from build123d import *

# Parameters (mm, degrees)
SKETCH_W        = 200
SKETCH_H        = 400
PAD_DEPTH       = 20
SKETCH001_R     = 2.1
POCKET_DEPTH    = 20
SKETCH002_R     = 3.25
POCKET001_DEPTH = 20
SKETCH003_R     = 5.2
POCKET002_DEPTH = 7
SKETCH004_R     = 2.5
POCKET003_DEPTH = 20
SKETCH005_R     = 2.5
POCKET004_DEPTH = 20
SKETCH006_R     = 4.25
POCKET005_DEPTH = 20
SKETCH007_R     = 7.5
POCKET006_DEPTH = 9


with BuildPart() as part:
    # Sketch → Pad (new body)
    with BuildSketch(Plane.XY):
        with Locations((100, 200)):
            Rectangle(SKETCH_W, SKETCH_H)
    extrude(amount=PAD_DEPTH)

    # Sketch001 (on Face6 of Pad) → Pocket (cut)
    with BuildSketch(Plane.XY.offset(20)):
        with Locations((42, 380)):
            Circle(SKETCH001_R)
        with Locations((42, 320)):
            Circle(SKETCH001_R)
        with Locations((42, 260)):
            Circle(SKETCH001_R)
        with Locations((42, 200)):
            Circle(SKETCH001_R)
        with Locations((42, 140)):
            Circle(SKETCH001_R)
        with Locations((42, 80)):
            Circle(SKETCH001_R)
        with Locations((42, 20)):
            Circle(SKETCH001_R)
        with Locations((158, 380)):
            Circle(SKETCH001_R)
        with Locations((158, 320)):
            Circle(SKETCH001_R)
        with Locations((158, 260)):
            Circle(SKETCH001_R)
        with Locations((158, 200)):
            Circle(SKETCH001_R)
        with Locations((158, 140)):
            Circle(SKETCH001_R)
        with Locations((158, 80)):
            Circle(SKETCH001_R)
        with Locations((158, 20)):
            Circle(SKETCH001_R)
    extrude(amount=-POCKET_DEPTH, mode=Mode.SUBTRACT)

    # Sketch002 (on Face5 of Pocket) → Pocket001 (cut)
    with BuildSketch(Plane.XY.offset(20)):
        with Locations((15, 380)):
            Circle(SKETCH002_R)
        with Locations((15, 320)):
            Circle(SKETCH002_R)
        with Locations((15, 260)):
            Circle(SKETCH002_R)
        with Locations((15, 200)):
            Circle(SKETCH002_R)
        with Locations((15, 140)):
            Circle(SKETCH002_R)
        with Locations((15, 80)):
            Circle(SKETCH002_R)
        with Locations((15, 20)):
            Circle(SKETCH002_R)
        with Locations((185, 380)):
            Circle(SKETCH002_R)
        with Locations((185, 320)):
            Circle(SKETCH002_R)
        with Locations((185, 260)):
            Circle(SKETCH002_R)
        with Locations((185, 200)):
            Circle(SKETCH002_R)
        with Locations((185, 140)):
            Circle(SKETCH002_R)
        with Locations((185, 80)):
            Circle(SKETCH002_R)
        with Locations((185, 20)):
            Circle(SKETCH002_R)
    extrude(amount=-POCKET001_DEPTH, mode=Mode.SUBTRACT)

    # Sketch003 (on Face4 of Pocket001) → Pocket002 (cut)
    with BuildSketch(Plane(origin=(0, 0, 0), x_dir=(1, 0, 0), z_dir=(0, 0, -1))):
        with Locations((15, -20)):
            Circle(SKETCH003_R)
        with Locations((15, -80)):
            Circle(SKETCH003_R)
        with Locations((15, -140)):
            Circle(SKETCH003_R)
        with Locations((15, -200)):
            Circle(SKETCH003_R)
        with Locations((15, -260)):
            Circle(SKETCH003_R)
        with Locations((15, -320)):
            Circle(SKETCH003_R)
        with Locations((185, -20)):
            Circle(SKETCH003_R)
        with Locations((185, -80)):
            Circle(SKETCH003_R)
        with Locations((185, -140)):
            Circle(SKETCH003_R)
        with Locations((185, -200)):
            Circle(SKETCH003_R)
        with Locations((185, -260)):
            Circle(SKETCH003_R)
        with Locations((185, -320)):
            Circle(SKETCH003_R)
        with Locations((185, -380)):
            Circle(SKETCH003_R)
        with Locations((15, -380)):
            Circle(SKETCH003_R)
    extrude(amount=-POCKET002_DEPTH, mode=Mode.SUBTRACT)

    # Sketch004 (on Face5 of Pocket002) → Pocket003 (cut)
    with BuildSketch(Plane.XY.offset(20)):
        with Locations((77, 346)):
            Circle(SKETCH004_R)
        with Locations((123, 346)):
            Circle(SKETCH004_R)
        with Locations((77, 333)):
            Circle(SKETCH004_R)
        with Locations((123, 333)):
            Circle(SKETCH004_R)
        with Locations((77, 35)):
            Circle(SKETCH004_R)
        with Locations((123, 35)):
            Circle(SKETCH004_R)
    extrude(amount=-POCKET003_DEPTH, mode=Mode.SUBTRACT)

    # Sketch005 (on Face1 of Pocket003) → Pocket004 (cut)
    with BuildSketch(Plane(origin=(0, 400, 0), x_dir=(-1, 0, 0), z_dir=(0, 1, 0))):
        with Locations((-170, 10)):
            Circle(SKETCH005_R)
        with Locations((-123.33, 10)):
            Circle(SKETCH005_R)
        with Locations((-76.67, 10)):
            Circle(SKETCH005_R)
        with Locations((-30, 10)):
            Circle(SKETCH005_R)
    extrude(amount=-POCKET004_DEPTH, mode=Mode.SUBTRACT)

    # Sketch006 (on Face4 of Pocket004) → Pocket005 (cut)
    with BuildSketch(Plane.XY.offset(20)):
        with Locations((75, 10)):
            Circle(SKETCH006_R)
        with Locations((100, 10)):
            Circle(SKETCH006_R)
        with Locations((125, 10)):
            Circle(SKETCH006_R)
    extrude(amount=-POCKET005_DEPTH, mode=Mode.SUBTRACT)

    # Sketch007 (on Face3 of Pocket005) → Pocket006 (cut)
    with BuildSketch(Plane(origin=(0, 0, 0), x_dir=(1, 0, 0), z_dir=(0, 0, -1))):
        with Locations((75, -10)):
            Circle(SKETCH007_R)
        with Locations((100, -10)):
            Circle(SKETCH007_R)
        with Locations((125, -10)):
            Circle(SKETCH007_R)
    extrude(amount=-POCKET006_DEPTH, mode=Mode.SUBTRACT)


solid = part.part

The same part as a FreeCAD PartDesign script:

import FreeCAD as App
import Part
import Sketcher

V = App.Vector

doc = App.newDocument("Part")
body = doc.addObject("PartDesign::Body", "Body")

sketch1 = body.newObject("Sketcher::SketchObject", "Sketch")
sketch1.AttachmentSupport = (doc.getObject("XY_Plane"), [""])
sketch1.MapMode = "FlatFace"
sketch1.addGeometry(Part.LineSegment(V(0, 400, 0), V(0, 0, 0)), False)
sketch1.addGeometry(Part.LineSegment(V(0, 0, 0), V(200, 0, 0)), False)
sketch1.addGeometry(Part.LineSegment(V(200, 0, 0), V(200, 400, 0)), False)
sketch1.addGeometry(Part.LineSegment(V(200, 400, 0), V(0, 400, 0)), False)
sketch1.addConstraint(Sketcher.Constraint("Coincident", 0, 2, 1, 1))
sketch1.addConstraint(Sketcher.Constraint("Coincident", 1, 2, 2, 1))
sketch1.addConstraint(Sketcher.Constraint("Coincident", 2, 2, 3, 1))
sketch1.addConstraint(Sketcher.Constraint("Coincident", 3, 2, 0, 1))
sketch1.addConstraint(Sketcher.Constraint("Vertical", 0))
sketch1.addConstraint(Sketcher.Constraint("Horizontal", 1))
sketch1.addConstraint(Sketcher.Constraint("Vertical", 2))
sketch1.addConstraint(Sketcher.Constraint("Horizontal", 3))
sketch1.addConstraint(Sketcher.Constraint("Coincident", 0, 2, -1, 1))
sketch1.addConstraint(Sketcher.Constraint("DistanceX", 1, 1, 1, 2, 200.0))
sketch1.addConstraint(Sketcher.Constraint("DistanceY", 0, 2, 0, 1, 400.0))
pad1 = body.newObject("PartDesign::Pad", "Pad")
pad1.Profile = sketch1
pad1.Length = 20

sketch2 = body.newObject("Sketcher::SketchObject", "Sketch001")
sketch2.AttachmentSupport = (doc.getObject("XY_Plane"), [""])
sketch2.MapMode = "FlatFace"
sketch2.AttachmentOffset = App.Placement(V(0, 0, 20), App.Rotation())
sketch2.addGeometry(Part.Circle(V(42, 380, 0), V(0, 0, 1), 2.1), False)
sketch2.addGeometry(Part.Circle(V(42, 320, 0), V(0, 0, 1), 2.1), False)
sketch2.addGeometry(Part.Circle(V(42, 260, 0), V(0, 0, 1), 2.1), False)
sketch2.addGeometry(Part.Circle(V(42, 200, 0), V(0, 0, 1), 2.1), False)
sketch2.addGeometry(Part.Circle(V(42, 140, 0), V(0, 0, 1), 2.1), False)
sketch2.addGeometry(Part.Circle(V(42, 80, 0), V(0, 0, 1), 2.1), False)
sketch2.addGeometry(Part.Circle(V(42, 20, 0), V(0, 0, 1), 2.1), False)
sketch2.addGeometry(Part.Circle(V(158, 380, 0), V(0, 0, 1), 2.1), False)
sketch2.addGeometry(Part.Circle(V(158, 320, 0), V(0, 0, 1), 2.1), False)
sketch2.addGeometry(Part.Circle(V(158, 260, 0), V(0, 0, 1), 2.1), False)
sketch2.addGeometry(Part.Circle(V(158, 200, 0), V(0, 0, 1), 2.1), False)
sketch2.addGeometry(Part.Circle(V(158, 140, 0), V(0, 0, 1), 2.1), False)
sketch2.addGeometry(Part.Circle(V(158, 80, 0), V(0, 0, 1), 2.1), False)
sketch2.addGeometry(Part.Circle(V(158, 20, 0), V(0, 0, 1), 2.1), False)
sketch2.addConstraint(Sketcher.Constraint("Equal", 0, 1))
sketch2.addConstraint(Sketcher.Constraint("Equal", 1, 2))
sketch2.addConstraint(Sketcher.Constraint("Equal", 2, 3))
sketch2.addConstraint(Sketcher.Constraint("Equal", 3, 4))
sketch2.addConstraint(Sketcher.Constraint("Equal", 4, 5))
sketch2.addConstraint(Sketcher.Constraint("Equal", 5, 6))
sketch2.addConstraint(Sketcher.Constraint("Equal", 6, 7))
sketch2.addConstraint(Sketcher.Constraint("Equal", 7, 8))
sketch2.addConstraint(Sketcher.Constraint("Equal", 8, 9))
sketch2.addConstraint(Sketcher.Constraint("Equal", 9, 10))
sketch2.addConstraint(Sketcher.Constraint("Equal", 10, 11))
sketch2.addConstraint(Sketcher.Constraint("Equal", 11, 12))
sketch2.addConstraint(Sketcher.Constraint("Equal", 12, 13))
sketch2.addConstraint(Sketcher.Constraint("Horizontal", 0, 3, 7, 3))
sketch2.addConstraint(Sketcher.Constraint("Horizontal", 1, 3, 8, 3))
sketch2.addConstraint(Sketcher.Constraint("Horizontal", 2, 3, 9, 3))
sketch2.addConstraint(Sketcher.Constraint("Horizontal", 3, 3, 10, 3))
sketch2.addConstraint(Sketcher.Constraint("Horizontal", 4, 3, 11, 3))
sketch2.addConstraint(Sketcher.Constraint("Horizontal", 5, 3, 12, 3))
sketch2.addConstraint(Sketcher.Constraint("Horizontal", 6, 3, 13, 3))
sketch2.addConstraint(Sketcher.Constraint("Vertical", 0, 3, 1, 3))
sketch2.addConstraint(Sketcher.Constraint("Vertical", 1, 3, 2, 3))
sketch2.addConstraint(Sketcher.Constraint("Vertical", 2, 3, 3, 3))
sketch2.addConstraint(Sketcher.Constraint("Vertical", 3, 3, 4, 3))
sketch2.addConstraint(Sketcher.Constraint("Vertical", 4, 3, 5, 3))
sketch2.addConstraint(Sketcher.Constraint("Vertical", 5, 3, 6, 3))
sketch2.addConstraint(Sketcher.Constraint("Vertical", 7, 3, 8, 3))
sketch2.addConstraint(Sketcher.Constraint("Vertical", 8, 3, 9, 3))
sketch2.addConstraint(Sketcher.Constraint("Vertical", 9, 3, 10, 3))
sketch2.addConstraint(Sketcher.Constraint("Vertical", 10, 3, 11, 3))
sketch2.addConstraint(Sketcher.Constraint("Vertical", 11, 3, 12, 3))
sketch2.addConstraint(Sketcher.Constraint("Vertical", 12, 3, 13, 3))
sketch2.addConstraint(Sketcher.Constraint("Diameter", 0, 4.2))
sketch2.addConstraint(Sketcher.Constraint("DistanceX", -1, 1, 0, 3, 42.0))
sketch2.addConstraint(Sketcher.Constraint("DistanceY", -1, 1, 0, 3, 380.0))
sketch2.addConstraint(Sketcher.Constraint("DistanceY", -1, 1, 1, 3, 320.0))
sketch2.addConstraint(Sketcher.Constraint("DistanceY", -1, 1, 2, 3, 260.0))
sketch2.addConstraint(Sketcher.Constraint("DistanceY", -1, 1, 3, 3, 200.0))
sketch2.addConstraint(Sketcher.Constraint("DistanceY", -1, 1, 4, 3, 140.0))
sketch2.addConstraint(Sketcher.Constraint("DistanceY", -1, 1, 5, 3, 80.0))
sketch2.addConstraint(Sketcher.Constraint("DistanceY", -1, 1, 6, 3, 20.0))
sketch2.addConstraint(Sketcher.Constraint("DistanceX", -1, 1, 7, 3, 158.0))
pocket1 = body.newObject("PartDesign::Pocket", "Pocket")
pocket1.Profile = sketch2
pocket1.Length = 20

sketch3 = body.newObject("Sketcher::SketchObject", "Sketch002")
sketch3.AttachmentSupport = (doc.getObject("XY_Plane"), [""])
sketch3.MapMode = "FlatFace"
sketch3.AttachmentOffset = App.Placement(V(0, 0, 20), App.Rotation())
sketch3.addGeometry(Part.Circle(V(15, 380, 0), V(0, 0, 1), 3.2), False)
sketch3.addGeometry(Part.Circle(V(15, 320, 0), V(0, 0, 1), 3.2), False)
sketch3.addGeometry(Part.Circle(V(15, 260, 0), V(0, 0, 1), 3.2), False)
sketch3.addGeometry(Part.Circle(V(15, 200, 0), V(0, 0, 1), 3.2), False)
sketch3.addGeometry(Part.Circle(V(15, 140, 0), V(0, 0, 1), 3.2), False)
sketch3.addGeometry(Part.Circle(V(15, 80, 0), V(0, 0, 1), 3.2), False)
sketch3.addGeometry(Part.Circle(V(15, 20, 0), V(0, 0, 1), 3.2), False)
sketch3.addGeometry(Part.Circle(V(185, 380, 0), V(0, 0, 1), 3.2), False)
sketch3.addGeometry(Part.Circle(V(185, 320, 0), V(0, 0, 1), 3.2), False)
sketch3.addGeometry(Part.Circle(V(185, 260, 0), V(0, 0, 1), 3.2), False)
sketch3.addGeometry(Part.Circle(V(185, 200, 0), V(0, 0, 1), 3.2), False)
sketch3.addGeometry(Part.Circle(V(185, 140, 0), V(0, 0, 1), 3.2), False)
sketch3.addGeometry(Part.Circle(V(185, 80, 0), V(0, 0, 1), 3.2), False)
sketch3.addGeometry(Part.Circle(V(185, 20, 0), V(0, 0, 1), 3.2), False)
sketch3.addConstraint(Sketcher.Constraint("Equal", 0, 1))
sketch3.addConstraint(Sketcher.Constraint("Equal", 1, 2))
sketch3.addConstraint(Sketcher.Constraint("Equal", 2, 3))
sketch3.addConstraint(Sketcher.Constraint("Equal", 3, 4))
sketch3.addConstraint(Sketcher.Constraint("Equal", 4, 5))
sketch3.addConstraint(Sketcher.Constraint("Equal", 5, 6))
sketch3.addConstraint(Sketcher.Constraint("Equal", 6, 7))
sketch3.addConstraint(Sketcher.Constraint("Equal", 7, 8))
sketch3.addConstraint(Sketcher.Constraint("Equal", 8, 9))
sketch3.addConstraint(Sketcher.Constraint("Equal", 9, 10))
sketch3.addConstraint(Sketcher.Constraint("Equal", 10, 11))
sketch3.addConstraint(Sketcher.Constraint("Equal", 11, 12))
sketch3.addConstraint(Sketcher.Constraint("Equal", 12, 13))
sketch3.addConstraint(Sketcher.Constraint("Horizontal", 0, 3, 7, 3))
sketch3.addConstraint(Sketcher.Constraint("Horizontal", 1, 3, 8, 3))
sketch3.addConstraint(Sketcher.Constraint("Horizontal", 2, 3, 9, 3))
sketch3.addConstraint(Sketcher.Constraint("Horizontal", 3, 3, 10, 3))
sketch3.addConstraint(Sketcher.Constraint("Horizontal", 4, 3, 11, 3))
sketch3.addConstraint(Sketcher.Constraint("Horizontal", 5, 3, 12, 3))
sketch3.addConstraint(Sketcher.Constraint("Horizontal", 6, 3, 13, 3))
sketch3.addConstraint(Sketcher.Constraint("Vertical", 0, 3, 1, 3))
sketch3.addConstraint(Sketcher.Constraint("Vertical", 1, 3, 2, 3))
sketch3.addConstraint(Sketcher.Constraint("Vertical", 2, 3, 3, 3))
sketch3.addConstraint(Sketcher.Constraint("Vertical", 3, 3, 4, 3))
sketch3.addConstraint(Sketcher.Constraint("Vertical", 4, 3, 5, 3))
sketch3.addConstraint(Sketcher.Constraint("Vertical", 5, 3, 6, 3))
sketch3.addConstraint(Sketcher.Constraint("Vertical", 7, 3, 8, 3))
sketch3.addConstraint(Sketcher.Constraint("Vertical", 8, 3, 9, 3))
sketch3.addConstraint(Sketcher.Constraint("Vertical", 9, 3, 10, 3))
sketch3.addConstraint(Sketcher.Constraint("Vertical", 10, 3, 11, 3))
sketch3.addConstraint(Sketcher.Constraint("Vertical", 11, 3, 12, 3))
sketch3.addConstraint(Sketcher.Constraint("Vertical", 12, 3, 13, 3))
sketch3.addConstraint(Sketcher.Constraint("Diameter", 0, 6.5))
sketch3.addConstraint(Sketcher.Constraint("DistanceX", -1, 1, 0, 3, 15.0))
sketch3.addConstraint(Sketcher.Constraint("DistanceY", -1, 1, 0, 3, 380.0))
sketch3.addConstraint(Sketcher.Constraint("DistanceY", -1, 1, 1, 3, 320.0))
sketch3.addConstraint(Sketcher.Constraint("DistanceY", -1, 1, 2, 3, 260.0))
sketch3.addConstraint(Sketcher.Constraint("DistanceY", -1, 1, 3, 3, 200.0))
sketch3.addConstraint(Sketcher.Constraint("DistanceY", -1, 1, 4, 3, 140.0))
sketch3.addConstraint(Sketcher.Constraint("DistanceY", -1, 1, 5, 3, 80.0))
sketch3.addConstraint(Sketcher.Constraint("DistanceY", -1, 1, 6, 3, 20.0))
sketch3.addConstraint(Sketcher.Constraint("DistanceX", -1, 1, 7, 3, 185.0))
pocket2 = body.newObject("PartDesign::Pocket", "Pocket001")
pocket2.Profile = sketch3
pocket2.Length = 20

sketch4 = body.newObject("Sketcher::SketchObject", "Sketch003")
sketch4.AttachmentSupport = (doc.getObject("XY_Plane"), [""])
sketch4.MapMode = "FlatFace"
sketch4.addGeometry(Part.Circle(V(15, 20, 0), V(0, 0, 1), 5), False)
sketch4.addGeometry(Part.Circle(V(15, 80, 0), V(0, 0, 1), 5), False)
sketch4.addGeometry(Part.Circle(V(15, 140, 0), V(0, 0, 1), 5), False)
sketch4.addGeometry(Part.Circle(V(15, 200, 0), V(0, 0, 1), 5), False)
sketch4.addGeometry(Part.Circle(V(15, 260, 0), V(0, 0, 1), 5), False)
sketch4.addGeometry(Part.Circle(V(15, 320, 0), V(0, 0, 1), 5), False)
sketch4.addGeometry(Part.Circle(V(185, 20, 0), V(0, 0, 1), 5), False)
sketch4.addGeometry(Part.Circle(V(185, 80, 0), V(0, 0, 1), 5), False)
sketch4.addGeometry(Part.Circle(V(185, 140, 0), V(0, 0, 1), 5), False)
sketch4.addGeometry(Part.Circle(V(185, 200, 0), V(0, 0, 1), 5), False)
sketch4.addGeometry(Part.Circle(V(185, 260, 0), V(0, 0, 1), 5), False)
sketch4.addGeometry(Part.Circle(V(185, 320, 0), V(0, 0, 1), 5), False)
sketch4.addGeometry(Part.Circle(V(185, 380, 0), V(0, 0, 1), 5), False)
sketch4.addGeometry(Part.Circle(V(15, 380, 0), V(0, 0, 1), 5), False)
sketch4.addConstraint(Sketcher.Constraint("Equal", 0, 1))
sketch4.addConstraint(Sketcher.Constraint("Equal", 1, 2))
sketch4.addConstraint(Sketcher.Constraint("Equal", 2, 3))
sketch4.addConstraint(Sketcher.Constraint("Equal", 3, 4))
sketch4.addConstraint(Sketcher.Constraint("Equal", 4, 5))
sketch4.addConstraint(Sketcher.Constraint("Equal", 5, 6))
sketch4.addConstraint(Sketcher.Constraint("Equal", 6, 7))
sketch4.addConstraint(Sketcher.Constraint("Equal", 7, 8))
sketch4.addConstraint(Sketcher.Constraint("Equal", 8, 9))
sketch4.addConstraint(Sketcher.Constraint("Equal", 9, 10))
sketch4.addConstraint(Sketcher.Constraint("Equal", 10, 11))
sketch4.addConstraint(Sketcher.Constraint("Equal", 11, 12))
sketch4.addConstraint(Sketcher.Constraint("Equal", 12, 13))
sketch4.addConstraint(Sketcher.Constraint("Horizontal", 0, 3, 6, 3))
sketch4.addConstraint(Sketcher.Constraint("Horizontal", 1, 3, 7, 3))
sketch4.addConstraint(Sketcher.Constraint("Horizontal", 2, 3, 8, 3))
sketch4.addConstraint(Sketcher.Constraint("Horizontal", 3, 3, 9, 3))
sketch4.addConstraint(Sketcher.Constraint("Horizontal", 4, 3, 10, 3))
sketch4.addConstraint(Sketcher.Constraint("Horizontal", 5, 3, 11, 3))
sketch4.addConstraint(Sketcher.Constraint("Horizontal", 12, 3, 13, 3))
sketch4.addConstraint(Sketcher.Constraint("Vertical", 0, 3, 1, 3))
sketch4.addConstraint(Sketcher.Constraint("Vertical", 1, 3, 2, 3))
sketch4.addConstraint(Sketcher.Constraint("Vertical", 2, 3, 3, 3))
sketch4.addConstraint(Sketcher.Constraint("Vertical", 3, 3, 4, 3))
sketch4.addConstraint(Sketcher.Constraint("Vertical", 4, 3, 5, 3))
sketch4.addConstraint(Sketcher.Constraint("Vertical", 6, 3, 7, 3))
sketch4.addConstraint(Sketcher.Constraint("Vertical", 7, 3, 8, 3))
sketch4.addConstraint(Sketcher.Constraint("Vertical", 8, 3, 9, 3))
sketch4.addConstraint(Sketcher.Constraint("Vertical", 9, 3, 10, 3))
sketch4.addConstraint(Sketcher.Constraint("Vertical", 10, 3, 11, 3))
sketch4.addConstraint(Sketcher.Constraint("Vertical", 11, 3, 12, 3))
sketch4.addConstraint(Sketcher.Constraint("Vertical", 5, 3, 13, 3))
sketch4.addConstraint(Sketcher.Constraint("Diameter", 0, 10.4))
sketch4.addConstraint(Sketcher.Constraint("DistanceX", -1, 1, 0, 3, 15.0))
sketch4.addConstraint(Sketcher.Constraint("DistanceY", -1, 1, 0, 3, 20.0))
sketch4.addConstraint(Sketcher.Constraint("DistanceY", -1, 1, 1, 3, 80.0))
sketch4.addConstraint(Sketcher.Constraint("DistanceY", -1, 1, 2, 3, 140.0))
sketch4.addConstraint(Sketcher.Constraint("DistanceY", -1, 1, 3, 3, 200.0))
sketch4.addConstraint(Sketcher.Constraint("DistanceY", -1, 1, 4, 3, 260.0))
sketch4.addConstraint(Sketcher.Constraint("DistanceY", -1, 1, 5, 3, 320.0))
sketch4.addConstraint(Sketcher.Constraint("DistanceX", -1, 1, 6, 3, 185.0))
sketch4.addConstraint(Sketcher.Constraint("DistanceY", -1, 1, 12, 3, 380.0))
pocket3 = body.newObject("PartDesign::Pocket", "Pocket002")
pocket3.Profile = sketch4
pocket3.Length = 7
pocket3.Reversed = True

sketch5 = body.newObject("Sketcher::SketchObject", "Sketch004")
sketch5.AttachmentSupport = (doc.getObject("XY_Plane"), [""])
sketch5.MapMode = "FlatFace"
sketch5.AttachmentOffset = App.Placement(V(0, 0, 20), App.Rotation())
sketch5.addGeometry(Part.Circle(V(77, 346, 0), V(0, 0, 1), 2.5), False)
sketch5.addGeometry(Part.Circle(V(123, 346, 0), V(0, 0, 1), 2.5), False)
sketch5.addGeometry(Part.Circle(V(77, 333, 0), V(0, 0, 1), 2.5), False)
sketch5.addGeometry(Part.Circle(V(123, 333, 0), V(0, 0, 1), 2.5), False)
sketch5.addGeometry(Part.Circle(V(77, 35, 0), V(0, 0, 1), 2.5), False)
sketch5.addGeometry(Part.Circle(V(123, 35, 0), V(0, 0, 1), 2.5), False)
sketch5.addConstraint(Sketcher.Constraint("Equal", 0, 1))
sketch5.addConstraint(Sketcher.Constraint("Equal", 1, 2))
sketch5.addConstraint(Sketcher.Constraint("Equal", 2, 3))
sketch5.addConstraint(Sketcher.Constraint("Equal", 3, 4))
sketch5.addConstraint(Sketcher.Constraint("Equal", 4, 5))
sketch5.addConstraint(Sketcher.Constraint("Horizontal", 0, 3, 1, 3))
sketch5.addConstraint(Sketcher.Constraint("Horizontal", 2, 3, 3, 3))
sketch5.addConstraint(Sketcher.Constraint("Horizontal", 4, 3, 5, 3))
sketch5.addConstraint(Sketcher.Constraint("Vertical", 0, 3, 2, 3))
sketch5.addConstraint(Sketcher.Constraint("Vertical", 1, 3, 3, 3))
sketch5.addConstraint(Sketcher.Constraint("Vertical", 2, 3, 4, 3))
sketch5.addConstraint(Sketcher.Constraint("Vertical", 3, 3, 5, 3))
sketch5.addConstraint(Sketcher.Constraint("Diameter", 0, 5.0))
sketch5.addConstraint(Sketcher.Constraint("DistanceX", -1, 1, 0, 3, 77.0))
sketch5.addConstraint(Sketcher.Constraint("DistanceY", -1, 1, 0, 3, 346.0))
sketch5.addConstraint(Sketcher.Constraint("DistanceX", -1, 1, 1, 3, 123.0))
sketch5.addConstraint(Sketcher.Constraint("DistanceY", -1, 1, 2, 3, 333.0))
sketch5.addConstraint(Sketcher.Constraint("DistanceY", -1, 1, 4, 3, 35.0))
pocket4 = body.newObject("PartDesign::Pocket", "Pocket003")
pocket4.Profile = sketch5
pocket4.Length = 20

sketch6 = body.newObject("Sketcher::SketchObject", "Sketch005")
sketch6.AttachmentSupport = (doc.getObject("XZ_Plane"), [""])
sketch6.MapMode = "FlatFace"
sketch6.AttachmentOffset = App.Placement(V(0, 0, -400), App.Rotation())
sketch6.addGeometry(Part.Circle(V(170, 10, 0), V(0, 0, 1), 2.5), False)
sketch6.addGeometry(Part.Circle(V(123.3, 10, 0), V(0, 0, 1), 2.5), False)
sketch6.addGeometry(Part.Circle(V(76.7, 10, 0), V(0, 0, 1), 2.5), False)
sketch6.addGeometry(Part.Circle(V(30, 10, 0), V(0, 0, 1), 2.5), False)
sketch6.addConstraint(Sketcher.Constraint("Equal", 0, 1))
sketch6.addConstraint(Sketcher.Constraint("Equal", 1, 2))
sketch6.addConstraint(Sketcher.Constraint("Equal", 2, 3))
sketch6.addConstraint(Sketcher.Constraint("Horizontal", 0, 3, 1, 3))
sketch6.addConstraint(Sketcher.Constraint("Horizontal", 1, 3, 2, 3))
sketch6.addConstraint(Sketcher.Constraint("Horizontal", 2, 3, 3, 3))
sketch6.addConstraint(Sketcher.Constraint("Diameter", 0, 5.0))
sketch6.addConstraint(Sketcher.Constraint("DistanceX", -1, 1, 0, 3, 170.0))
sketch6.addConstraint(Sketcher.Constraint("DistanceY", -1, 1, 0, 3, 10.0))
sketch6.addConstraint(Sketcher.Constraint("DistanceX", -1, 1, 3, 3, 30.0))
sketch6.addConstraint(Sketcher.Constraint("DistanceX", -1, 1, 1, 3, 123.33))
sketch6.addConstraint(Sketcher.Constraint("DistanceX", -1, 1, 2, 3, 76.67))
pocket5 = body.newObject("PartDesign::Pocket", "Pocket004")
pocket5.Profile = sketch6
pocket5.Length = 20
pocket5.Reversed = True

sketch7 = body.newObject("Sketcher::SketchObject", "Sketch006")
sketch7.AttachmentSupport = (doc.getObject("XY_Plane"), [""])
sketch7.MapMode = "FlatFace"
sketch7.AttachmentOffset = App.Placement(V(0, 0, 20), App.Rotation())
sketch7.addGeometry(Part.Circle(V(75, 10, 0), V(0, 0, 1), 4.2), False)
sketch7.addGeometry(Part.Circle(V(100, 10, 0), V(0, 0, 1), 4.2), False)
sketch7.addGeometry(Part.Circle(V(125, 10, 0), V(0, 0, 1), 4.2), False)
sketch7.addConstraint(Sketcher.Constraint("Equal", 0, 1))
sketch7.addConstraint(Sketcher.Constraint("Equal", 1, 2))
sketch7.addConstraint(Sketcher.Constraint("Horizontal", 0, 3, 1, 3))
sketch7.addConstraint(Sketcher.Constraint("Horizontal", 1, 3, 2, 3))
sketch7.addConstraint(Sketcher.Constraint("Diameter", 0, 8.5))
sketch7.addConstraint(Sketcher.Constraint("DistanceX", -1, 1, 0, 3, 75.0))
sketch7.addConstraint(Sketcher.Constraint("DistanceY", -1, 1, 0, 3, 10.0))
sketch7.addConstraint(Sketcher.Constraint("DistanceX", -1, 1, 1, 3, 100.0))
sketch7.addConstraint(Sketcher.Constraint("DistanceX", -1, 1, 2, 3, 125.0))
pocket6 = body.newObject("PartDesign::Pocket", "Pocket005")
pocket6.Profile = sketch7
pocket6.Length = 20

sketch8 = body.newObject("Sketcher::SketchObject", "Sketch007")
sketch8.AttachmentSupport = (doc.getObject("XY_Plane"), [""])
sketch8.MapMode = "FlatFace"
sketch8.addGeometry(Part.Circle(V(75, 10, 0), V(0, 0, 1), 8), False)
sketch8.addGeometry(Part.Circle(V(100, 10, 0), V(0, 0, 1), 8), False)
sketch8.addGeometry(Part.Circle(V(125, 10, 0), V(0, 0, 1), 8), False)
sketch8.addConstraint(Sketcher.Constraint("Equal", 0, 1))
sketch8.addConstraint(Sketcher.Constraint("Equal", 1, 2))
sketch8.addConstraint(Sketcher.Constraint("Horizontal", 0, 3, 1, 3))
sketch8.addConstraint(Sketcher.Constraint("Horizontal", 1, 3, 2, 3))
sketch8.addConstraint(Sketcher.Constraint("Diameter", 0, 15.0))
sketch8.addConstraint(Sketcher.Constraint("DistanceX", -1, 1, 0, 3, 75.0))
sketch8.addConstraint(Sketcher.Constraint("DistanceY", -1, 1, 0, 3, 10.0))
sketch8.addConstraint(Sketcher.Constraint("DistanceX", -1, 1, 1, 3, 100.0))
sketch8.addConstraint(Sketcher.Constraint("DistanceX", -1, 1, 2, 3, 125.0))
pocket7 = body.newObject("PartDesign::Pocket", "Pocket006")
pocket7.Profile = sketch8
pocket7.Length = 9
pocket7.Reversed = True

doc.recompute()
